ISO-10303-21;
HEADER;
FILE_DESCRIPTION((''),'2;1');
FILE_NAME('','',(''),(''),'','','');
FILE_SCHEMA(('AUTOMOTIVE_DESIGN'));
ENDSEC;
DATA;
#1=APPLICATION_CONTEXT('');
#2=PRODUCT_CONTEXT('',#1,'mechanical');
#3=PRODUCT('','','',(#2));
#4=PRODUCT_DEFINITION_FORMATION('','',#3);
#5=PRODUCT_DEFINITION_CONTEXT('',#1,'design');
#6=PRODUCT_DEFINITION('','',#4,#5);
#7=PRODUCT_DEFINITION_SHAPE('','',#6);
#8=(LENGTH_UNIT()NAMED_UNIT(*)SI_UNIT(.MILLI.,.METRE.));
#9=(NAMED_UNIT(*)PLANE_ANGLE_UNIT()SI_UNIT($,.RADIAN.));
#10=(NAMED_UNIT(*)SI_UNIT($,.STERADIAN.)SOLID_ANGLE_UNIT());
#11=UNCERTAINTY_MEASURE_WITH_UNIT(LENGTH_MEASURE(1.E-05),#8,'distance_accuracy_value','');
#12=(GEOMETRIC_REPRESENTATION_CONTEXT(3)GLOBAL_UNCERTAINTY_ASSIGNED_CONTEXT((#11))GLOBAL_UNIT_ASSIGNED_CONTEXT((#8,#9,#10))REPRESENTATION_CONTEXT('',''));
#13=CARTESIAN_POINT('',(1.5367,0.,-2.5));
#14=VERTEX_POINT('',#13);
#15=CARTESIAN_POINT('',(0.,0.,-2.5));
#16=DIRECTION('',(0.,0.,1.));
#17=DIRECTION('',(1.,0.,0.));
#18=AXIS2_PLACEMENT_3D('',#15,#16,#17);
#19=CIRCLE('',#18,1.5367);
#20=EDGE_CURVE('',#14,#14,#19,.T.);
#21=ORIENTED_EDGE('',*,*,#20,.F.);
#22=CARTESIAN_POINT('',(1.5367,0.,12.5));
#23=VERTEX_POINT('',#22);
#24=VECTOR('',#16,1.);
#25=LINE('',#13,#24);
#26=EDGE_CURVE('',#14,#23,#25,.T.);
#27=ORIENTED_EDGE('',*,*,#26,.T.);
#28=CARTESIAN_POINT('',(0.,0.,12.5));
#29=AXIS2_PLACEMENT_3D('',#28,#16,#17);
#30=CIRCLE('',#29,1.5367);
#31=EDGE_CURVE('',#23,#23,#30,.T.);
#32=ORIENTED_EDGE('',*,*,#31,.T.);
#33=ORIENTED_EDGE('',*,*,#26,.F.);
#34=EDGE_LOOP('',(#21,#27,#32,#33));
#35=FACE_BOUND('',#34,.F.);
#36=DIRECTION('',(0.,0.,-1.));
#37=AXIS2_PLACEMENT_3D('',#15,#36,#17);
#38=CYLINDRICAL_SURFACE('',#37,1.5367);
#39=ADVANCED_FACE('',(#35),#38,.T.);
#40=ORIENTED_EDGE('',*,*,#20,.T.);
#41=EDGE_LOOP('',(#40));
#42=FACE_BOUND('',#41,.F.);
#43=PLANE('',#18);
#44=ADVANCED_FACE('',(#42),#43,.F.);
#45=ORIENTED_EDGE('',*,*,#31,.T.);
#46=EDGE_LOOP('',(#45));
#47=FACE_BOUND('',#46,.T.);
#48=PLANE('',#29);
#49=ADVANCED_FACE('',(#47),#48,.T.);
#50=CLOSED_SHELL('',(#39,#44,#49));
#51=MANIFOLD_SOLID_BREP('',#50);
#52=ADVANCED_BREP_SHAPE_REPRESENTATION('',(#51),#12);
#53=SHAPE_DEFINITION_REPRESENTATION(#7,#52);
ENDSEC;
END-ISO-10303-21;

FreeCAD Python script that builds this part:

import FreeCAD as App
import Part
import Sketcher
from FreeCAD import Vector

doc = App.newDocument("Part")
params = doc.addObject("Spreadsheet::Sheet", "Params")
for row, (alias, value) in enumerate([
    ("pad1_length", "15 mm"),
], start=1):
    params.set(f"A{row}", alias)
    params.set(f"B{row}", "=" + value)
    params.setAlias(f"B{row}", alias)

body = doc.addObject("PartDesign::Body", "Body")

# Sketch on XY plane
sketch1 = body.newObject("Sketcher::SketchObject", "Sketch")
sketch1.AttachmentSupport = (doc.getObject("XY_Plane"), [""])
sketch1.MapMode = "FlatFace"
sketch1.AttachmentOffset = App.Placement(Vector(0, 0, -2.5), App.Rotation())
sketch1.addGeometry(Part.Circle(Vector(0, 0, 0), Vector(0, 0, 1), 1.5), False)
sketch1.addConstraint([
    Sketcher.Constraint("Coincident", 0, 3, -1, 1),
    Sketcher.Constraint("Diameter", 0, 3.0734),
])
pad1 = body.newObject("PartDesign::Pad", "Pad")
pad1.Profile = sketch1
pad1.setExpression("Length", "Params.pad1_length")

doc.recompute()
